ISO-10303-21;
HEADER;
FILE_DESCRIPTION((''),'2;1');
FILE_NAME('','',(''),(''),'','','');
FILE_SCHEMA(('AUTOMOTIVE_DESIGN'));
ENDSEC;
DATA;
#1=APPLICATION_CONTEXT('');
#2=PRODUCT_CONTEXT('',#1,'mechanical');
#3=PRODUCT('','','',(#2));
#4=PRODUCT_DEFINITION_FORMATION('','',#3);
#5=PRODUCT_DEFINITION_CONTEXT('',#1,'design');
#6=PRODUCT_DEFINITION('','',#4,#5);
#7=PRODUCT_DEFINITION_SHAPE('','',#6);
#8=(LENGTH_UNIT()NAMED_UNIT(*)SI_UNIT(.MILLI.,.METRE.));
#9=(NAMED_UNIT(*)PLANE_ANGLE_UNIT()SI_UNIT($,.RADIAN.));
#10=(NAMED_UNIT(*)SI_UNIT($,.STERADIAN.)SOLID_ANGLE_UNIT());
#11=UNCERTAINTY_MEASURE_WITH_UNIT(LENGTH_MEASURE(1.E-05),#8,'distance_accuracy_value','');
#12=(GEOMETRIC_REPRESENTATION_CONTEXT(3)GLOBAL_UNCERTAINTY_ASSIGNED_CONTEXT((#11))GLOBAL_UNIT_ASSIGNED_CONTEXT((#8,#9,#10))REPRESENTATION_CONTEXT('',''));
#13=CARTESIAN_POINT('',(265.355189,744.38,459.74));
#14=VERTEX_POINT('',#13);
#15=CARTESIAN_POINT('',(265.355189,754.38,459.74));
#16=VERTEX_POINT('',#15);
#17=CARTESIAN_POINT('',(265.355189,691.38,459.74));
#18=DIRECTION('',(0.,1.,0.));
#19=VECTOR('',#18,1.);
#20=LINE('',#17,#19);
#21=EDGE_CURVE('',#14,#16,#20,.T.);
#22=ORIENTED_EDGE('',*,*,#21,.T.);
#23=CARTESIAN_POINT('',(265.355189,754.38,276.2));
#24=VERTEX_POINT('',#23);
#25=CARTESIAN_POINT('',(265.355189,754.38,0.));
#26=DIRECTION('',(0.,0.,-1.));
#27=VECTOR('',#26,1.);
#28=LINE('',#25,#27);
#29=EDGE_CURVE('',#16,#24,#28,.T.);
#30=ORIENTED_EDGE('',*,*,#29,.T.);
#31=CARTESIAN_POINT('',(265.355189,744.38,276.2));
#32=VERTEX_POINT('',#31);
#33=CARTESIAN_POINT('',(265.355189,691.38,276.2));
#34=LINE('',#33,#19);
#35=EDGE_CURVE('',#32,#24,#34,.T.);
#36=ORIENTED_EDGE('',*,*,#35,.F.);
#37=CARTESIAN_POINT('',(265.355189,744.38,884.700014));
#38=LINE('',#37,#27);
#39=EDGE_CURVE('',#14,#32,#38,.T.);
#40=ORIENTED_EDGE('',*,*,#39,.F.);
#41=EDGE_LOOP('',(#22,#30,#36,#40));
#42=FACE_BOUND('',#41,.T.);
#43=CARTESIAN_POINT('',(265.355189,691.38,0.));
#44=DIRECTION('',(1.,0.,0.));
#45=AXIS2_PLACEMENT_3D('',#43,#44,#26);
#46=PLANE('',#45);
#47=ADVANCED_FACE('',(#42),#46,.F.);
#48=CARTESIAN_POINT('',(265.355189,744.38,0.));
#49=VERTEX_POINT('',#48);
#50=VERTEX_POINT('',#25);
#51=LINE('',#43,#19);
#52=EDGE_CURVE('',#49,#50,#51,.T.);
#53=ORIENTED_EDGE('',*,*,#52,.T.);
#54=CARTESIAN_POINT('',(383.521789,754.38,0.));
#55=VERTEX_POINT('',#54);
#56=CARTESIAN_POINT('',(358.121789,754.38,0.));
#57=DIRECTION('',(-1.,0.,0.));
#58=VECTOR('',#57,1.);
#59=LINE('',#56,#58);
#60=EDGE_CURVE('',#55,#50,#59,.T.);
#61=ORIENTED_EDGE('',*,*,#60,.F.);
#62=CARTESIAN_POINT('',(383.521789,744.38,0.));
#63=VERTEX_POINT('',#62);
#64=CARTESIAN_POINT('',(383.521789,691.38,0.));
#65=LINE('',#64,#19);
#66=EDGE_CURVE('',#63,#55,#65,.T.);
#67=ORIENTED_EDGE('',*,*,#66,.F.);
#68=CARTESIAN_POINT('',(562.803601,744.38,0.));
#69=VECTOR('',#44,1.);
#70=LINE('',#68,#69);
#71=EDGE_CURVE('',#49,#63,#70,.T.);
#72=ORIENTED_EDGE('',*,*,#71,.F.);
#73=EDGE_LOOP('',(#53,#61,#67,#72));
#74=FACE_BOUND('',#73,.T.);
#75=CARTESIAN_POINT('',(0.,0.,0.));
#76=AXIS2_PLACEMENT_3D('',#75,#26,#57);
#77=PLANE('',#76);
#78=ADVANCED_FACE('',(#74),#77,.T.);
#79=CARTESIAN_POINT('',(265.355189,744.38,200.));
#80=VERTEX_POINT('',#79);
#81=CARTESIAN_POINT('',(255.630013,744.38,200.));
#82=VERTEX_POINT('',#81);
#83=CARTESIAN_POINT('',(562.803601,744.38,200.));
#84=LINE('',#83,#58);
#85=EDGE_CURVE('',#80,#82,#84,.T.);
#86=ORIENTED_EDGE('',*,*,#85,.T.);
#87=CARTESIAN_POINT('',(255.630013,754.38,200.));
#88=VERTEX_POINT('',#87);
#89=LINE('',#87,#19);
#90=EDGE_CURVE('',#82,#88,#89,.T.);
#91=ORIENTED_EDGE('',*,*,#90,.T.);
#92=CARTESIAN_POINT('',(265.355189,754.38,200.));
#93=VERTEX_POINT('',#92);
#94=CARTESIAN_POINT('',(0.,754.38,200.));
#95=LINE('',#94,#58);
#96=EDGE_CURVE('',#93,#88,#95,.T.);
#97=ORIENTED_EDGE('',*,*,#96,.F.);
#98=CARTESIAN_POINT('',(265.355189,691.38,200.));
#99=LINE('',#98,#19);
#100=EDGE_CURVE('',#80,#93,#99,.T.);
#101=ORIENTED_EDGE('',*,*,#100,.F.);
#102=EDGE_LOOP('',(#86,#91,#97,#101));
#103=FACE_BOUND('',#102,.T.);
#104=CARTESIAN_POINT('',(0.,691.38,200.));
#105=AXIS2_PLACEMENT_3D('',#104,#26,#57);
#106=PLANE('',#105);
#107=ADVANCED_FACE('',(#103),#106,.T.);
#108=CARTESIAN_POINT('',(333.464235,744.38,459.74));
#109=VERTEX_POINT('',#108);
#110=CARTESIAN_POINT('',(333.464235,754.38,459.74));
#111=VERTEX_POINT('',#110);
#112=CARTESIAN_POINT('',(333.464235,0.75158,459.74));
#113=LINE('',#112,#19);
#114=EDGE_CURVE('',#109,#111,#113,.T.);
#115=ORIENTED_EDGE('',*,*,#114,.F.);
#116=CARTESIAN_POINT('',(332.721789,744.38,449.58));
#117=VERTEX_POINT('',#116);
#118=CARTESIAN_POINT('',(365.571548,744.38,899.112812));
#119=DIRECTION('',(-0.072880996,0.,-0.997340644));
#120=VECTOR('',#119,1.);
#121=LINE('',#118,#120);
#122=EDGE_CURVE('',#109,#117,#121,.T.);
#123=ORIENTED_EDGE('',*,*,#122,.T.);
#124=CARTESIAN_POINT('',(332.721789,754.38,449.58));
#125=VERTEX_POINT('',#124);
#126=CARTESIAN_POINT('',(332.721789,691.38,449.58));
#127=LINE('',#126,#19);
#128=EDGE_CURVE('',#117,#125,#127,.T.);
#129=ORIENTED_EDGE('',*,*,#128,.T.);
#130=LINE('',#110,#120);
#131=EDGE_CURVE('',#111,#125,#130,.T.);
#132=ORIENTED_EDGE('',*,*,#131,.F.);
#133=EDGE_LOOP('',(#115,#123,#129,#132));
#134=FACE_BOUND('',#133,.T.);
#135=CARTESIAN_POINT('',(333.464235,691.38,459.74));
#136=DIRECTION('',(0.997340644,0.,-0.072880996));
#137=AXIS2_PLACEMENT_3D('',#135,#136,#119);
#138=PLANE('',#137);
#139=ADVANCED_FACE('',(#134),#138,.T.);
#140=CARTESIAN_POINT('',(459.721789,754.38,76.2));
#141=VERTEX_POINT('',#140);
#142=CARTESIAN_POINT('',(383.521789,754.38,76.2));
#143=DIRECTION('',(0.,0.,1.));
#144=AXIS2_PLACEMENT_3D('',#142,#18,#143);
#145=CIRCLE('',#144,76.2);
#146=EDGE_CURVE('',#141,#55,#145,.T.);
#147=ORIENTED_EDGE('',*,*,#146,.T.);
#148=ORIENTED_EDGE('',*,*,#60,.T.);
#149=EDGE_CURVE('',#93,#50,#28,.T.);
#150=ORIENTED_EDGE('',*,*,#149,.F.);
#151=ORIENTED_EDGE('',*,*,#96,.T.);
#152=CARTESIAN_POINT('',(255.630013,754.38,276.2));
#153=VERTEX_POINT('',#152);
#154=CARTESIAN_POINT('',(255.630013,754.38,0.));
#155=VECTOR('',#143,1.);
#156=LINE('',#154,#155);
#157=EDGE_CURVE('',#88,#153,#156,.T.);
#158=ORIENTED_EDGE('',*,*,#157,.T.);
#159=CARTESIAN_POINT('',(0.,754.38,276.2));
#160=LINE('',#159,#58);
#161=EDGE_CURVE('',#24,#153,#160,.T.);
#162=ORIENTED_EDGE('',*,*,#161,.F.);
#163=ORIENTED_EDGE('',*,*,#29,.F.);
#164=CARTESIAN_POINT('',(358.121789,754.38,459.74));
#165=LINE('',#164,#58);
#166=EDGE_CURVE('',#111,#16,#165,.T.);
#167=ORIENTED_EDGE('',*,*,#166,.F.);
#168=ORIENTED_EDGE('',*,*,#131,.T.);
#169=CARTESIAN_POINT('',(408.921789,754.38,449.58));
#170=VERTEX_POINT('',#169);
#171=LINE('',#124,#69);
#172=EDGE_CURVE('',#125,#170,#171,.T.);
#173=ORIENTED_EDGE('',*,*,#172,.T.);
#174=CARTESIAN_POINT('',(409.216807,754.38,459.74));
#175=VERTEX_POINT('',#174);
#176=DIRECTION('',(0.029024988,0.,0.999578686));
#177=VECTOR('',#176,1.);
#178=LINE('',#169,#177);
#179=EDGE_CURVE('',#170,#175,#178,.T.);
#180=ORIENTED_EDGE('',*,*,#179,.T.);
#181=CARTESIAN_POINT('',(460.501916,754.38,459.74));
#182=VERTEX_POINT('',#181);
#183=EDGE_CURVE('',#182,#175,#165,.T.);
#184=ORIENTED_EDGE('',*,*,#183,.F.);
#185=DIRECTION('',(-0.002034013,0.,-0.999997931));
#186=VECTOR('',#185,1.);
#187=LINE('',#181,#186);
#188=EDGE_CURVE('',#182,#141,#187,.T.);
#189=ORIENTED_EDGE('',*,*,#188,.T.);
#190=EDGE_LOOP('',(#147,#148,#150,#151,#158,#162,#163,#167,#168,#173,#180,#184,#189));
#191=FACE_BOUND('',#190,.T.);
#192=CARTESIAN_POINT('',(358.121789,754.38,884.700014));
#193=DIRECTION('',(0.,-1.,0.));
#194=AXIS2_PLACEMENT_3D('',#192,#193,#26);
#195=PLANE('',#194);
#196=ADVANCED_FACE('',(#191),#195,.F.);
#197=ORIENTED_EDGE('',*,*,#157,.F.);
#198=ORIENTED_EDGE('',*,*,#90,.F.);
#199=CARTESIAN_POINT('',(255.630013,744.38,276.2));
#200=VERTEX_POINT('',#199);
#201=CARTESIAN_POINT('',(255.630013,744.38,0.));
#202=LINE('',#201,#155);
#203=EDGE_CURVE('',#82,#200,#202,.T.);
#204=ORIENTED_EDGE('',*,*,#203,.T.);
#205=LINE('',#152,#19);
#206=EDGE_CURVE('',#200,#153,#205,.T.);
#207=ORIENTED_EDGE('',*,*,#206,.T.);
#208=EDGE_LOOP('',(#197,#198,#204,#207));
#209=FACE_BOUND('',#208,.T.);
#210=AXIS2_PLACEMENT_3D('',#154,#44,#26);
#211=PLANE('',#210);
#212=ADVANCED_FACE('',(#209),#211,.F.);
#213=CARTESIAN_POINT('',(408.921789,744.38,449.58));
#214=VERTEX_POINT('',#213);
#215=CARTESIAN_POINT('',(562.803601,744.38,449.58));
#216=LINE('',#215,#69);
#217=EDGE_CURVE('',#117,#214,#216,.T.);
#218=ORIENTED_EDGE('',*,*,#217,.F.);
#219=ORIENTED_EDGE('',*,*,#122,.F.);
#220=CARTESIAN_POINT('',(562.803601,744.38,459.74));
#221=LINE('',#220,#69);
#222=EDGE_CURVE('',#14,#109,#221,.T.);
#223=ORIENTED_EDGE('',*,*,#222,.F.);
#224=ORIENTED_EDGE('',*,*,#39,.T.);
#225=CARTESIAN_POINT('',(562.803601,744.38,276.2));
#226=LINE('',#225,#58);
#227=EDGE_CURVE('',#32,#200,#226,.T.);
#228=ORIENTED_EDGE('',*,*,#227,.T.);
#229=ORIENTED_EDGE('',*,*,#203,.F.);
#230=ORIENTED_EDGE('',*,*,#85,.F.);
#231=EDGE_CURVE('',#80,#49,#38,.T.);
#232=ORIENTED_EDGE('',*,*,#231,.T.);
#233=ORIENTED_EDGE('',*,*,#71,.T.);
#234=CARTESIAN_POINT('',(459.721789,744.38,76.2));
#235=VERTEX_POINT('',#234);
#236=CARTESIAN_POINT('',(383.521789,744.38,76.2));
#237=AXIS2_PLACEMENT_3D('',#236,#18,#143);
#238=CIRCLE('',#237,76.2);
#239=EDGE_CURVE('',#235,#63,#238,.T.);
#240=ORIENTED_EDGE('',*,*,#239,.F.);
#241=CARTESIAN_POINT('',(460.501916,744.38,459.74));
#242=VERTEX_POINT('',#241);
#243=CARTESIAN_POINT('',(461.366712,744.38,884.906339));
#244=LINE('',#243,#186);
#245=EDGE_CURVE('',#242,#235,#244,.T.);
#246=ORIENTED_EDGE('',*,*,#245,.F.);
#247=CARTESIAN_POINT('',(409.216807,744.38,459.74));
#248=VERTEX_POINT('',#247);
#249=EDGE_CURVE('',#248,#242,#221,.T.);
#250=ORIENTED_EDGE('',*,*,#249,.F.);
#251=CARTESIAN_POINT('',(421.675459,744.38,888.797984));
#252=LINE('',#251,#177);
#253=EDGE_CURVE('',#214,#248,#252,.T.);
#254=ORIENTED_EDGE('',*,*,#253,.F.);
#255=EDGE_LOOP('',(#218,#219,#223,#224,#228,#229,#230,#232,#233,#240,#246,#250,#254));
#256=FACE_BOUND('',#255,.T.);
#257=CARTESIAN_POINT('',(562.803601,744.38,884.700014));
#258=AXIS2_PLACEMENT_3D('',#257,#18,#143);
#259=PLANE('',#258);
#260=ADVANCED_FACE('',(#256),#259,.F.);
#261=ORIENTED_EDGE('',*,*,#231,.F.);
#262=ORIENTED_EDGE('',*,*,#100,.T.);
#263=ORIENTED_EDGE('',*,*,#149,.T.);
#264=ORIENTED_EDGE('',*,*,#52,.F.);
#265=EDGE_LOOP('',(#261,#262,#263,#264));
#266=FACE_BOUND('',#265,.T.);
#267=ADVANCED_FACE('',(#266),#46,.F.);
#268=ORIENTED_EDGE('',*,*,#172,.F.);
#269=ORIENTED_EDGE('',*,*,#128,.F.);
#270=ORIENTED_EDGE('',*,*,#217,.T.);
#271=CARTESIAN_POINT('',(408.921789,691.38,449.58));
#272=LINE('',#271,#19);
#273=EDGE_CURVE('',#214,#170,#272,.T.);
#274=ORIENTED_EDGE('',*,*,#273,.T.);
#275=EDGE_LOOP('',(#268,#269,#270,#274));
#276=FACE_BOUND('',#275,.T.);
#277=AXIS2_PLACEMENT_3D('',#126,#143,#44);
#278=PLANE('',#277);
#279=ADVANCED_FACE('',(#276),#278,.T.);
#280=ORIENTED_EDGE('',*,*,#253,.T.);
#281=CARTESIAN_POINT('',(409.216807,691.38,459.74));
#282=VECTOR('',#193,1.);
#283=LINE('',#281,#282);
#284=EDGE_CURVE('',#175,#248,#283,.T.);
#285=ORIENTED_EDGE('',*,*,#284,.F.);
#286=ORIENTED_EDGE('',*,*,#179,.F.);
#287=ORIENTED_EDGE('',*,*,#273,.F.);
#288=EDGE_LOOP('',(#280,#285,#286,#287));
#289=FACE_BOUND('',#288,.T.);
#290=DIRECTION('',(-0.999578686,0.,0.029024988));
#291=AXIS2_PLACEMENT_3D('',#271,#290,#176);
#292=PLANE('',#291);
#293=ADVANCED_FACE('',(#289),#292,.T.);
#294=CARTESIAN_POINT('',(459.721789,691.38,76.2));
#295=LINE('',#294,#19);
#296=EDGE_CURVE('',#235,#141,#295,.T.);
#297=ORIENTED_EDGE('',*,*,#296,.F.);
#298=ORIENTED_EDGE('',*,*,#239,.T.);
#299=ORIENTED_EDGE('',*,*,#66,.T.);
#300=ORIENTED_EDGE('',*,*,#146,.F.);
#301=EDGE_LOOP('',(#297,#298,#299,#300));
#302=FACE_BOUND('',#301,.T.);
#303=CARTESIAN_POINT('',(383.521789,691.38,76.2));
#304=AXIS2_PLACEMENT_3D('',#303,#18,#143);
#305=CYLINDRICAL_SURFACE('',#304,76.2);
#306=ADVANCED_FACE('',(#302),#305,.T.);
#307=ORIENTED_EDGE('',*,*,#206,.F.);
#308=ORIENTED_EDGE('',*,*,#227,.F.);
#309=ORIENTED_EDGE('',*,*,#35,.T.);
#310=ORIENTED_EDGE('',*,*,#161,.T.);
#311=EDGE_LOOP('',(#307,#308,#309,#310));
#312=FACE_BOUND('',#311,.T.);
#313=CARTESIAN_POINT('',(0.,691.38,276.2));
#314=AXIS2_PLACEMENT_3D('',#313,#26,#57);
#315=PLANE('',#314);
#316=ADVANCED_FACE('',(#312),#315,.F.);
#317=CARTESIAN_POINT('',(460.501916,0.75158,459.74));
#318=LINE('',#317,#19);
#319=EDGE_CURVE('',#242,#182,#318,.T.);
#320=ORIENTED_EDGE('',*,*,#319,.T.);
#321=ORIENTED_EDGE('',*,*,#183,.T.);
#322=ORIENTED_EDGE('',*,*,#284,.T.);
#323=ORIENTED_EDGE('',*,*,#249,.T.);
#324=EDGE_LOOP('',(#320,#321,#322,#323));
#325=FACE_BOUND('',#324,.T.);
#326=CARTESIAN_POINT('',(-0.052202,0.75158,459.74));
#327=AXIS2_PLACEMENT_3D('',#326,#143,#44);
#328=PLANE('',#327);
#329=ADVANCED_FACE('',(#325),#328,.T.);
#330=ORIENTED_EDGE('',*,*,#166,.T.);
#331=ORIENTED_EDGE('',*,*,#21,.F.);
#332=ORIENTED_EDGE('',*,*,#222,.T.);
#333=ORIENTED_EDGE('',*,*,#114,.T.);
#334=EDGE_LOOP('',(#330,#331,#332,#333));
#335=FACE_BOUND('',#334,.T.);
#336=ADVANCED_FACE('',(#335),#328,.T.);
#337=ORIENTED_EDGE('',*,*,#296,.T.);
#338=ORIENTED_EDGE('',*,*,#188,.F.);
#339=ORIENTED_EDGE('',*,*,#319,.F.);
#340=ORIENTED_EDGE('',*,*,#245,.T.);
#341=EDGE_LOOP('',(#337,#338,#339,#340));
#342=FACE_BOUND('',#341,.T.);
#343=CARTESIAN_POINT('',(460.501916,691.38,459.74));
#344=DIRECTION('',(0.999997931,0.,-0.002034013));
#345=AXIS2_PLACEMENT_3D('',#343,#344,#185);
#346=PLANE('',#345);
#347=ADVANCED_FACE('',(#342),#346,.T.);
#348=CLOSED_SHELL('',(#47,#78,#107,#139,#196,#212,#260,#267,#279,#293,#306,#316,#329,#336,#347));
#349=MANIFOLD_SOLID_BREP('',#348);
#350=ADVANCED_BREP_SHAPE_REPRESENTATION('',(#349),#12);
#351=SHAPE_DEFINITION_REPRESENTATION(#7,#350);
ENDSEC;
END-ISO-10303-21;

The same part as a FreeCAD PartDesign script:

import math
import FreeCAD as App
import Part
import Sketcher

V = App.Vector
Q = App.Units.Quantity


def add_polygon(sketch, points):
    """Adds a closed chain of lines whose ends are joined by coincident constraints."""
    first, n = sketch.GeometryCount, len(points)
    for a, b in zip(points, points[1:] + points[:1]):
        sketch.addGeometry(Part.LineSegment(App.Vector(*a, 0), App.Vector(*b, 0)), False)
    for i in range(n):
        sketch.addConstraint(Sketcher.Constraint("Coincident", first + i, 2, first + (i + 1) % n, 1))

doc = App.newDocument("Part")
params = doc.addObject("Spreadsheet::Sheet", "Params")
for row, (alias, value) in enumerate([
    ("sketch1_height", "10 mm"),
    ("pad1_length", "459.74 mm"),
    ("sketch2_height", "459.74 mm"),
    ("pocket1_length", "10 mm"),
    ("sketch3_radius", "76.2 mm"),
    ("sketch3_height", "200 mm"),
    ("sketch3_width", "76.2 mm"),
    ("sketch3_height2", "183.54 mm"),
    ("pocket2_length", "63 mm"),
], start=1):
    params.set(f"A{row}", alias)
    params.set(f"B{row}", "=" + value)
    params.setAlias(f"B{row}", alias)

body = doc.addObject("PartDesign::Body", "Body")

sketch1 = doc.addObject("Sketcher::SketchObject", "Sketch")
body.addObject(sketch1)
sketch1.AttachmentSupport = (doc.XY_Plane, [""])
sketch1.MapMode = "FlatFace"
add_polygon(sketch1, [(138, 754), (138, 744), (563, 744), (563, 754)])
sketch1.addConstraint([
    Sketcher.Constraint("Vertical", 0),
    Sketcher.Constraint("Horizontal", 1),
    Sketcher.Constraint("Vertical", 2),
    Sketcher.Constraint("Horizontal", 3),
    Sketcher.Constraint("DistanceY", 0, 2, 0, 1, Q("10 mm")),
    Sketcher.Constraint("DistanceY", -1, 1, 0, 2, Q("744.38 mm")),
    Sketcher.Constraint("DistanceX", 1, 1, 1, 2, Q("424.84234 mm")),
    Sketcher.Constraint("DistanceX", -1, 1, 1, 2, Q("562.803601 mm")),
])
sketch1.setExpression("Constraints[8]", "Params.sketch1_height")
pad1 = doc.addObject("PartDesign::Pad", "Pad")
body.addObject(pad1)
pad1.Profile = sketch1
pad1.setExpression("Length", "Params.pad1_length")

sketch2 = doc.addObject("Sketcher::SketchObject", "Sketch001")
body.addObject(sketch2)
sketch2.AttachmentSupport = (doc.XZ_Plane, [""])
sketch2.MapMode = "FlatFace"
sketch2.AttachmentOffset = App.Placement(V(0, 0, -744.38), App.Rotation())
add_polygon(sketch2, [(138, 460), (138, 0), (256, 0), (256, 460)])
sketch2.addConstraint([
    Sketcher.Constraint("Vertical", 0),
    Sketcher.Constraint("Horizontal", 1),
    Sketcher.Constraint("Vertical", 2),
    Sketcher.Constraint("Horizontal", 3),
    Sketcher.Constraint("PointOnObject", 0, 2, -1),
    Sketcher.Constraint("DistanceY", 0, 2, 0, 1, Q("459.74 mm")),
    Sketcher.Constraint("DistanceX", 1, 1, 1, 2, Q("117.668752 mm")),
    Sketcher.Constraint("DistanceX", -1, 1, 0, 2, Q("137.961261 mm")),
])
sketch2.setExpression("Constraints[9]", "Params.sketch2_height")
pocket1 = doc.addObject("PartDesign::Pocket", "Pocket")
body.addObject(pocket1)
pocket1.Profile = sketch2
pocket1.setExpression("Length", "Params.pocket1_length")

sketch3 = doc.addObject("Sketcher::SketchObject", "Sketch002")
body.addObject(sketch3)
sketch3.AttachmentSupport = (doc.XZ_Plane, [""])
sketch3.MapMode = "FlatFace"
sketch3.AttachmentOffset = App.Placement(V(0, 0, -754.38), App.Rotation())
add_polygon(sketch3, [(255.630013, 276.2), (255.630013, 459.74), (265.355189, 459.74), (265.355189, 276.2)])
add_polygon(sketch3, [(255.630013, 0), (255.630013, 200), (265.355189, 200), (265.355189, 0)])
sketch3.addGeometry(Part.LineSegment(V(333.464235, 459.74, 0), V(369.761878, 561.839328, 0)), False)
sketch3.addGeometry(Part.LineSegment(V(369.761878, 561.839328, 0), V(604.247213, 525.668487, 0)), False)
sketch3.addGeometry(Part.LineSegment(V(604.247213, 525.668487, 0), V(681.481359, -161.109232, 0)), False)
sketch3.addGeometry(Part.LineSegment(V(681.481359, -161.109232, 0), V(358.740146, -101.846463, 0)), False)
sketch3.addGeometry(Part.LineSegment(V(358.740146, -101.846463, 0), V(383.521789, 0, 0)), False)
sketch3.addGeometry(Part.ArcOfCircle(Part.Circle(V(383.521789, 76.2, 0), V(0, 0, 1), 76.2), math.radians(-90), math.radians(0)), False)
sketch3.addGeometry(Part.LineSegment(V(459.721789, 76.2, 0), V(460.501916, 459.74, 0)), False)
sketch3.addGeometry(Part.LineSegment(V(460.501916, 459.74, 0), V(409.216807, 459.74, 0)), False)
sketch3.addGeometry(Part.LineSegment(V(409.216807, 459.74, 0), V(408.921789, 449.58, 0)), False)
sketch3.addGeometry(Part.LineSegment(V(408.921789, 449.58, 0), V(332.721789, 449.58, 0)), False)
sketch3.addGeometry(Part.LineSegment(V(332.721789, 449.58, 0), V(333.464235, 459.74, 0)), False)
sketch3.addConstraint([
    Sketcher.Constraint("Coincident", 8, 2, 9, 1),
    Sketcher.Constraint("Coincident", 9, 2, 10, 1),
    Sketcher.Constraint("Coincident", 10, 2, 11, 1),
    Sketcher.Constraint("Coincident", 11, 2, 12, 1),
    Sketcher.Constraint("Coincident", 12, 2, 13, 1),
    Sketcher.Constraint("Coincident", 13, 2, 14, 1),
    Sketcher.Constraint("Coincident", 14, 2, 15, 1),
    Sketcher.Constraint("Coincident", 15, 2, 16, 1),
    Sketcher.Constraint("Coincident", 16, 2, 17, 1),
    Sketcher.Constraint("Coincident", 17, 2, 18, 1),
    Sketcher.Constraint("Coincident", 18, 2, 8, 1),
    Sketcher.Constraint("Vertical", 0),
    Sketcher.Constraint("Horizontal", 1),
    Sketcher.Constraint("Vertical", 2),
    Sketcher.Constraint("Horizontal", 3),
    Sketcher.Constraint("Vertical", 4),
    Sketcher.Constraint("Horizontal", 5),
    Sketcher.Constraint("Vertical", 6),
    Sketcher.Constraint("Horizontal", 7),
    Sketcher.Constraint("Horizontal", 15),
    Sketcher.Constraint("Horizontal", 17),
    Sketcher.Constraint("PointOnObject", 6, 2, -1),
    Sketcher.Constraint("PointOnObject", 12, 2, -1),
    Sketcher.Constraint("Horizontal", 1, 2, 14, 2),
    Sketcher.Constraint("Horizontal", 15, 2, 18, 2),
    Sketcher.Constraint("Vertical", 3, 2, 4, 2),
    Sketcher.Constraint("Vertical", 2, 2, 5, 2),
    Sketcher.Constraint("Vertical", 13, 3, 12, 2),
    Sketcher.Constraint("Radius", 13, Q("76.2 mm")),
    Sketcher.Constraint("DistanceY", 4, 1, 4, 2, Q("200 mm")),
    Sketcher.Constraint("DistanceX", 17, 2, 17, 1, Q("76.2 mm")),
    Sketcher.Constraint("DistanceY", 13, 3, 2, 2, Q("200 mm")),
    Sketcher.Constraint("DistanceY", 0, 1, 0, 2, Q("183.54 mm")),
    Sketcher.Constraint("DistanceY", -1, 1, 13, 2, Q("76.2 mm")),
    Sketcher.Constraint("DistanceY", -1, 1, 16, 2, Q("449.58 mm")),
    Sketcher.Constraint("Distance", 10, Q("691.106901 mm")),
    Sketcher.Constraint("DistanceX", 15, 2, 15, 1, Q("51.285109 mm")),
    Sketcher.Constraint("DistanceX", 1, 2, 13, 3, Q("118.1666 mm")),
    Sketcher.Constraint("DistanceX", 0, 2, 9, 2, Q("348.617199 mm")),
    Sketcher.Constraint("DistanceX", 1, 2, 16, 2, Q("143.5666 mm")),
    Sketcher.Constraint("Distance", 8, Q("108.359548 mm")),
    Sketcher.Constraint("Distance", 12, Q("104.818089 mm")),
    Sketcher.Constraint("Distance", 18, Q("10.187091 mm")),
    Sketcher.Constraint("DistanceX", 1, 1, 1, 2, Q("9.725175 mm")),
    Sketcher.Constraint("DistanceX", -1, 1, 13, 3, Q("383.521789 mm")),
    Sketcher.Constraint("DistanceY", -1, 1, 8, 2, Q("561.839328 mm")),
    Sketcher.Constraint("DistanceX", -1, 1, 10, 2, Q("681.481359 mm")),
    Sketcher.Constraint("DistanceY", 10, 2, -1, 1, Q("161.109232 mm")),
    Sketcher.Constraint("DistanceX", 8, 2, 14, 2, Q("90.740039 mm")),
    Sketcher.Constraint("Distance", 11, Q("328.137115 mm")),
])
sketch3.setExpression("Constraints[36]", "Params.sketch3_radius")
sketch3.setExpression("Constraints[37]", "Params.sketch3_height")
sketch3.setExpression("Constraints[38]", "Params.sketch3_width")
sketch3.setExpression("Constraints[40]", "Params.sketch3_height2")
pocket2 = doc.addObject("PartDesign::Pocket", "Pocket001")
body.addObject(pocket2)
pocket2.Profile = sketch3
pocket2.setExpression("Length", "Params.pocket2_length")
pocket2.Reversed = True

doc.recompute()
